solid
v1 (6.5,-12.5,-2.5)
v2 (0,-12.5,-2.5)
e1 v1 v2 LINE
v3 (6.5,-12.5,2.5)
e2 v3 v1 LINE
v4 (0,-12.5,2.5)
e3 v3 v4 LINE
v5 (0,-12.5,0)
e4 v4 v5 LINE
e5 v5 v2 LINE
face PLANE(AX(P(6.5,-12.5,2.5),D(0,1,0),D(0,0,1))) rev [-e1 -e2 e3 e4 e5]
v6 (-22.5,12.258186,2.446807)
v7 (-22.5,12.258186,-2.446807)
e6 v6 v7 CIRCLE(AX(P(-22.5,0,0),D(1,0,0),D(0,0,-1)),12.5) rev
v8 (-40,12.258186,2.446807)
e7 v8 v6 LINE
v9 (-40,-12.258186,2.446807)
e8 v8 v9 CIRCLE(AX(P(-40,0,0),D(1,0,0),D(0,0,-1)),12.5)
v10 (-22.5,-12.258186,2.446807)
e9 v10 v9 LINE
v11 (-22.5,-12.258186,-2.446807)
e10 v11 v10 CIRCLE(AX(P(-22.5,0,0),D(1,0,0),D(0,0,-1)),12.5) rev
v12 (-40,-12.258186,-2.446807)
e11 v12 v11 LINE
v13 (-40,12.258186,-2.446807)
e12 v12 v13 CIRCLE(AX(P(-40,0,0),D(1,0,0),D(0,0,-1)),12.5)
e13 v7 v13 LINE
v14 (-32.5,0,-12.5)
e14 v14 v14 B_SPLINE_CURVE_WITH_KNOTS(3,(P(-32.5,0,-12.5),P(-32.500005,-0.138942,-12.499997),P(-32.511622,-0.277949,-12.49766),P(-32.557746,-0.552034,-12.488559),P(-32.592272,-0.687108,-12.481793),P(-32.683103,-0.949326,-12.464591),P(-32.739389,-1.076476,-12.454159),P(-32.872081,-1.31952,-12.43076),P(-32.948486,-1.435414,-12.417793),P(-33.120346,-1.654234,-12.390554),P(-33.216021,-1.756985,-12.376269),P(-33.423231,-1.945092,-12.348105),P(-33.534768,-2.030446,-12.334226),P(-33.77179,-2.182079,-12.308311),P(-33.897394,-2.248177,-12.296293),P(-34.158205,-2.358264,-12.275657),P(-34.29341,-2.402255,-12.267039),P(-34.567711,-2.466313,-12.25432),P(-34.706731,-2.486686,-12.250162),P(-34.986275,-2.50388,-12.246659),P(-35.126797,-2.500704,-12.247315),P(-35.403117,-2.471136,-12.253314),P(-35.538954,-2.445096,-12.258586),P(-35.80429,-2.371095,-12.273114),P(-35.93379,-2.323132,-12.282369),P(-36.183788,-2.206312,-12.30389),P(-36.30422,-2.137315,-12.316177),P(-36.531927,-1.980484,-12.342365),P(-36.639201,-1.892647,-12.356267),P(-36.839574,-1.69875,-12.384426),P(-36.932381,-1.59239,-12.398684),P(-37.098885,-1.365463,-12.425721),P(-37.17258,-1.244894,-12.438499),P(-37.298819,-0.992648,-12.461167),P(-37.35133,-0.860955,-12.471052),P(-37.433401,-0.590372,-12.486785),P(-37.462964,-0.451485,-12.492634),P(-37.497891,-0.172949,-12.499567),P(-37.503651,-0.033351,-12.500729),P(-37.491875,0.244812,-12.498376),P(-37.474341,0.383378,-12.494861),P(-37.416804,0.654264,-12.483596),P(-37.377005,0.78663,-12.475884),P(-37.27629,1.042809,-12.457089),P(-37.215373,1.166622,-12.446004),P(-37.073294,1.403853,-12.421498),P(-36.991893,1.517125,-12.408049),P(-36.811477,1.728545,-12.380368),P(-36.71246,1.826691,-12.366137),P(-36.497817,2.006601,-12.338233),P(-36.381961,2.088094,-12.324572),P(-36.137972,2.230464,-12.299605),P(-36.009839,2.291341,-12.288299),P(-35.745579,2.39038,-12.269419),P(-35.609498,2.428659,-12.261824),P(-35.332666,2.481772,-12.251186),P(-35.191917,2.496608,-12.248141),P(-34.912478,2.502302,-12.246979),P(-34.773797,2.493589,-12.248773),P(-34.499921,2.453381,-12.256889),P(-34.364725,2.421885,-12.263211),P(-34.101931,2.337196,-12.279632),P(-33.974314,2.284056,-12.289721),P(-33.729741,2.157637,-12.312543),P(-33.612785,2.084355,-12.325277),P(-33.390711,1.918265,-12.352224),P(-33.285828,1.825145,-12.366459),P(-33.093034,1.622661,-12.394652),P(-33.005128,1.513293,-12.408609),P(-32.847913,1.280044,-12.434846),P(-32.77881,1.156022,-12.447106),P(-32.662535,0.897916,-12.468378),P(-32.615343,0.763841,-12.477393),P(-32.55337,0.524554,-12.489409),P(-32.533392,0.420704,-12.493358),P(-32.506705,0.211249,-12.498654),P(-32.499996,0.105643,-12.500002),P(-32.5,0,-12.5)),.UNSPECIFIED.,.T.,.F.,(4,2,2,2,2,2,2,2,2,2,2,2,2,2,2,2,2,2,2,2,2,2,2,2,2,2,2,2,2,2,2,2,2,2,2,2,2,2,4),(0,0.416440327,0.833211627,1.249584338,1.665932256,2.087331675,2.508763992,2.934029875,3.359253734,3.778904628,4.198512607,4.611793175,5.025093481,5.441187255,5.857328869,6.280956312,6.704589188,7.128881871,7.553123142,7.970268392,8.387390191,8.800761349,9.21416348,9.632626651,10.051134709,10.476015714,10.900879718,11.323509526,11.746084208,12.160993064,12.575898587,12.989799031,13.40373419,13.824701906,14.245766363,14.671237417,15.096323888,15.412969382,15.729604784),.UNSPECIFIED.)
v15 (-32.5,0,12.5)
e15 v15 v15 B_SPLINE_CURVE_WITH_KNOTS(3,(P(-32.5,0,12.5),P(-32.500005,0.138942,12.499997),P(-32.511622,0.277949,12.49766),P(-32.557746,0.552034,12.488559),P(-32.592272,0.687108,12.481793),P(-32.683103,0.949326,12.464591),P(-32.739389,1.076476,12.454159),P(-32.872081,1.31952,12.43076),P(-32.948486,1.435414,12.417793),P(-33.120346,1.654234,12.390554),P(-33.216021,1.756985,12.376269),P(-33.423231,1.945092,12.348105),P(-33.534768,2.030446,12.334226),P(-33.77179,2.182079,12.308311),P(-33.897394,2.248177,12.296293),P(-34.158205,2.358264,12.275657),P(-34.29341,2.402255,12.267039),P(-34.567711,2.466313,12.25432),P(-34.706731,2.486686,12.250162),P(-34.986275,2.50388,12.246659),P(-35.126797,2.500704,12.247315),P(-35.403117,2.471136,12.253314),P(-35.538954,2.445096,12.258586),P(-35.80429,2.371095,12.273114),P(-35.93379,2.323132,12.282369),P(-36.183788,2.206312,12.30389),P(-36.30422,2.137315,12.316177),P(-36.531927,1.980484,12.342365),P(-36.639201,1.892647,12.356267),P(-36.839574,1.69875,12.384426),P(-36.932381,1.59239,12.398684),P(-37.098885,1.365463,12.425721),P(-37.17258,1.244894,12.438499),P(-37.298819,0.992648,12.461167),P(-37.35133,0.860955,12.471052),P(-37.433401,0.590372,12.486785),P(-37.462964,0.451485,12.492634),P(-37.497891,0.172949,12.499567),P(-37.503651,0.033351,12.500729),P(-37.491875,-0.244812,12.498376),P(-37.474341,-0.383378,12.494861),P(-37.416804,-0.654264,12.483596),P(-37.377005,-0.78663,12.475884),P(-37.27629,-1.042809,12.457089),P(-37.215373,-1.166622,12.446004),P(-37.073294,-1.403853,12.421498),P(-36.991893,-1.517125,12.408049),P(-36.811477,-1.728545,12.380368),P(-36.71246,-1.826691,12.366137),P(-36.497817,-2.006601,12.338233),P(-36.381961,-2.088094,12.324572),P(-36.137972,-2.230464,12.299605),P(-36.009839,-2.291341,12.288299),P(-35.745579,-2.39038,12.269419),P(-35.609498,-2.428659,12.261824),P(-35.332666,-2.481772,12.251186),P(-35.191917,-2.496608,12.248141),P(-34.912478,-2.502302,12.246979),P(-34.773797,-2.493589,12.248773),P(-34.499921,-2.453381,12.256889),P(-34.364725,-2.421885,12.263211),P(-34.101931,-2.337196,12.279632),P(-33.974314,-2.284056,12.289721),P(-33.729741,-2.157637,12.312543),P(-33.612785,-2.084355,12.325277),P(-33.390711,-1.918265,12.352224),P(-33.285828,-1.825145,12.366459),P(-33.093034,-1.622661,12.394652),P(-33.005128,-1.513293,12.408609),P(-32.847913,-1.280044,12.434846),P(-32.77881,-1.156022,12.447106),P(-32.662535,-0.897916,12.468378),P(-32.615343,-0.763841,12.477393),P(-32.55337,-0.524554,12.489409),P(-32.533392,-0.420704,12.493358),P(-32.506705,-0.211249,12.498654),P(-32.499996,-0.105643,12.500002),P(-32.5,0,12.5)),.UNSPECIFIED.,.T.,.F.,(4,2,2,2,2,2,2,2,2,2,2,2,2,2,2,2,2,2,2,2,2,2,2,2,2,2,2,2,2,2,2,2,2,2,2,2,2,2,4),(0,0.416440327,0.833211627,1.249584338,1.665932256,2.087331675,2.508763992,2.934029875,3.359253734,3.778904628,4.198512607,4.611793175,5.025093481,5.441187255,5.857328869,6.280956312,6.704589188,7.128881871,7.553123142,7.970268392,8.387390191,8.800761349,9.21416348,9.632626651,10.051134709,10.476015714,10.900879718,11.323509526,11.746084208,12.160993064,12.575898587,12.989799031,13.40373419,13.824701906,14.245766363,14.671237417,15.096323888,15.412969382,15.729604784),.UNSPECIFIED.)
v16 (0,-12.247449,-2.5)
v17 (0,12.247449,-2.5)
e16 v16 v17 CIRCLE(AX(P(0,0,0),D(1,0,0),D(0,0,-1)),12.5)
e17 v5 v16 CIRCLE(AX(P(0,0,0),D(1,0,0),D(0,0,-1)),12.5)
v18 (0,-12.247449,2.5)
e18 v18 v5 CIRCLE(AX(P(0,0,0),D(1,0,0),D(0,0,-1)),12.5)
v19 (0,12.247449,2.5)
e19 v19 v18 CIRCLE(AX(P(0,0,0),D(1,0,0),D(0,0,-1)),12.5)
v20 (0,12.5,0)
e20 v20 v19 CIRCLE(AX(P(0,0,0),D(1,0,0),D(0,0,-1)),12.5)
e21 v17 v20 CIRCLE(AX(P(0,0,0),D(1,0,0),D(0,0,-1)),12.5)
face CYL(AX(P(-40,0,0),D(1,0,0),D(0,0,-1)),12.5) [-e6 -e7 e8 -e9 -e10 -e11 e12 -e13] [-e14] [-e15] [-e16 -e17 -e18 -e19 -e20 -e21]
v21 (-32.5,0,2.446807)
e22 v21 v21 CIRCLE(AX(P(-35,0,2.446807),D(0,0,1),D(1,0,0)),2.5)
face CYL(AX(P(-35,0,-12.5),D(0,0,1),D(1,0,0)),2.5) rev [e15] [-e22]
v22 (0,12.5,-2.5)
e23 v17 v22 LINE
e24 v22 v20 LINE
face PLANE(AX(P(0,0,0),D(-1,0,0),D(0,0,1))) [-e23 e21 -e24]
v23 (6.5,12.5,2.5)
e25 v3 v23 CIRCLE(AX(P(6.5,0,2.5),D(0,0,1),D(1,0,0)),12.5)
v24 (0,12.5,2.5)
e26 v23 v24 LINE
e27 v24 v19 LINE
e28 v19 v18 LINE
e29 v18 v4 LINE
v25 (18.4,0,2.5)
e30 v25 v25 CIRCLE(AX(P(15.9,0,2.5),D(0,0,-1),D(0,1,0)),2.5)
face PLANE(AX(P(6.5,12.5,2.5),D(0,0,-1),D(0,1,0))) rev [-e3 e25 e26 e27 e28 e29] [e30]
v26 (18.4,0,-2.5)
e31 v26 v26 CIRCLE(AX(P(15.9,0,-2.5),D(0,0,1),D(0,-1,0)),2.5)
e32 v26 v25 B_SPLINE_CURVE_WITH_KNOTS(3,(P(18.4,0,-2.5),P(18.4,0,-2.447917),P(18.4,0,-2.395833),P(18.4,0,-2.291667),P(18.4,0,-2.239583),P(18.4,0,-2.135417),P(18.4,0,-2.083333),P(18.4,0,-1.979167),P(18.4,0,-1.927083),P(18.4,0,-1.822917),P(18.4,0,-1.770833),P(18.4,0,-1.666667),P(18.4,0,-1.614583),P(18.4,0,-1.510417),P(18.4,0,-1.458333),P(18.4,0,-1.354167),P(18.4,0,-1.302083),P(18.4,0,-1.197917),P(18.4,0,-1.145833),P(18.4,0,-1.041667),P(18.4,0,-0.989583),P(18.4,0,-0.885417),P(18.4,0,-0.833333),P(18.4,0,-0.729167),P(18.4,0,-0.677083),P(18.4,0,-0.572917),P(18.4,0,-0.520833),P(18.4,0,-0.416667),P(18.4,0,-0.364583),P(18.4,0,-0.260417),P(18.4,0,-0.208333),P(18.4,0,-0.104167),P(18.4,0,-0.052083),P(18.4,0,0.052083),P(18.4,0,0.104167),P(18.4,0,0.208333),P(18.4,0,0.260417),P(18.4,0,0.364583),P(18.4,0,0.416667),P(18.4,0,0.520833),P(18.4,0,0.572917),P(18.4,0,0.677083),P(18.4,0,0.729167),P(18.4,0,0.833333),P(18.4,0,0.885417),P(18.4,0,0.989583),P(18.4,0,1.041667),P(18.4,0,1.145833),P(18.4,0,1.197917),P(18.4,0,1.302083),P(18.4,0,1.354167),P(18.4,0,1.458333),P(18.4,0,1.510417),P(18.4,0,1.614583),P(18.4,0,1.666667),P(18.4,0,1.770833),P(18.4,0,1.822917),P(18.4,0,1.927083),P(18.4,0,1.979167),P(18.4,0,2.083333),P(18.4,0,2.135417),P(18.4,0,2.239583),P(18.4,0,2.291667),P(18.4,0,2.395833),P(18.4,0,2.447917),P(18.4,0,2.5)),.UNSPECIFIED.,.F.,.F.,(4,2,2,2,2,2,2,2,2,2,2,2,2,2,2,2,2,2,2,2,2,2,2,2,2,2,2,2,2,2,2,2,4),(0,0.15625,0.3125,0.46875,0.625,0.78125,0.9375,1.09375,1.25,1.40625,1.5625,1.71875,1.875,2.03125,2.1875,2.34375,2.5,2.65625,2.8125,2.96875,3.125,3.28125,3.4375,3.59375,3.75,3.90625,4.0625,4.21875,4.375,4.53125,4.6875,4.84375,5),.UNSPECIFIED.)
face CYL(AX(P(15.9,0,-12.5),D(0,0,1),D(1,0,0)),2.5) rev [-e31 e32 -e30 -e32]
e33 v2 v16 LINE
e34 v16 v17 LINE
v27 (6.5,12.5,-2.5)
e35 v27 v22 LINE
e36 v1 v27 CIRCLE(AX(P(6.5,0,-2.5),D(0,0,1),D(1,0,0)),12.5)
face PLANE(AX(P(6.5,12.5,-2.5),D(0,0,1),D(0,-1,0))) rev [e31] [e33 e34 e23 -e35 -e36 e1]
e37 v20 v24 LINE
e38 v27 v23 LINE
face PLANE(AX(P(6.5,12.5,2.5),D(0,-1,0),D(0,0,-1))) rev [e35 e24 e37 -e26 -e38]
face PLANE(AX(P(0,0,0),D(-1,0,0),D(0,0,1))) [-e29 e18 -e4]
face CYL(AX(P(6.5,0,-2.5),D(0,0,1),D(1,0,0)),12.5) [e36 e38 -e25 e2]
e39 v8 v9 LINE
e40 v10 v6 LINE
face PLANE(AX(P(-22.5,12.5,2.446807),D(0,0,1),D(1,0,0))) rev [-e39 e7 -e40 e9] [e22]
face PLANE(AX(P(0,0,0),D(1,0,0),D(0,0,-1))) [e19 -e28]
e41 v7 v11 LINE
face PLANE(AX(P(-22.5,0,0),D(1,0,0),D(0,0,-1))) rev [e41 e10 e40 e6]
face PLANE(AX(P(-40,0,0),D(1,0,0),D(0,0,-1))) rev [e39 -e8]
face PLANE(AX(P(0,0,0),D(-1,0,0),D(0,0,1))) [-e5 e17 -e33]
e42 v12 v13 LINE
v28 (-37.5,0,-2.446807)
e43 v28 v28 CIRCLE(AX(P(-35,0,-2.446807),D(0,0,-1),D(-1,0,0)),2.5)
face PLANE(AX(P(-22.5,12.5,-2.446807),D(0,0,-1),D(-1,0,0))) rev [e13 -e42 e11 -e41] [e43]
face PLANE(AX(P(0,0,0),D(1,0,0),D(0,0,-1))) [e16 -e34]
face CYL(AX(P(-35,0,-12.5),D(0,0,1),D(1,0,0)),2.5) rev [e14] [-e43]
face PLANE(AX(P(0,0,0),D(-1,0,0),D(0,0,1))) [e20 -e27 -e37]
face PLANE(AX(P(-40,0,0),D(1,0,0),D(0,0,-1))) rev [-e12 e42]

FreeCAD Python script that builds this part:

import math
import FreeCAD as App
import Part
import Sketcher
from FreeCAD import Vector
Q = App.Units.Quantity

doc = App.newDocument("Part")
body = doc.addObject("PartDesign::Body", "Body")

# Sketch on YZ plane
sketch1 = body.newObject("Sketcher::SketchObject", "Sketch")
sketch1.AttachmentSupport = (doc.getObject("YZ_Plane"), [""])
sketch1.MapMode = "FlatFace"
sketch1.addGeometry(Part.Circle(Vector(0, 0, 0), Vector(0, 0, 1), 12.5), False)
sketch1.addConstraint([
    Sketcher.Constraint("Coincident", 0, 3, -1, 1),
    Sketcher.Constraint("Diameter", 0, Q("25 mm")),
])
pad1 = body.newObject("PartDesign::Pad", "Pad")
pad1.Profile = sketch1
pad1.Length = 40
pad1.Reversed = True

# Sketch on YZ plane
sketch2 = body.newObject("Sketcher::SketchObject", "Sketch001")
sketch2.AttachmentSupport = (doc.getObject("YZ_Plane"), [""])
sketch2.MapMode = "FlatFace"
sketch2.addGeometry([
    Part.LineSegment(Vector(12.5, 2.5, 0), Vector(-12.5, 2.5, 0)),
    Part.LineSegment(Vector(-12.5, 2.5, 0), Vector(-12.5, -2.5, 0)),
    Part.LineSegment(Vector(-12.5, -2.5, 0), Vector(12.5, -2.5, 0)),
    Part.LineSegment(Vector(12.5, -2.5, 0), Vector(12.5, 2.5, 0)),
], False)
sketch2.addConstraint([
    Sketcher.Constraint("Coincident", 0, 2, 1, 1),
    Sketcher.Constraint("Coincident", 1, 2, 2, 1),
    Sketcher.Constraint("Coincident", 2, 2, 3, 1),
    Sketcher.Constraint("Coincident", 3, 2, 0, 1),
    Sketcher.Constraint("Horizontal", 0),
    Sketcher.Constraint("Vertical", 1),
    Sketcher.Constraint("Horizontal", 2),
    Sketcher.Constraint("Vertical", 3),
    Sketcher.Constraint("Symmetric", 0, 2, 2, 2, -1, 1),
    Sketcher.Constraint("DistanceX", 0, 2, 0, 1, Q("25 mm")),
    Sketcher.Constraint("DistanceY", 1, 2, 1, 1, Q("5 mm")),
])
pad2 = body.newObject("PartDesign::Pad", "Pad001")
pad2.Profile = sketch2
pad2.Length = 6.5

# Sketch on XY plane
sketch3 = body.newObject("Sketcher::SketchObject", "Sketch002")
sketch3.AttachmentSupport = (doc.getObject("XY_Plane"), [""])
sketch3.MapMode = "FlatFace"
sketch3.AttachmentOffset = App.Placement(Vector(0, 0, 2.5), App.Rotation())
sketch3.addGeometry([
    Part.LineSegment(Vector(6.5, 12.5, 0), Vector(6.5, -12.5, 0)),
    Part.ArcOfCircle(Part.Circle(Vector(6.5, 0, 0), Vector(0, 0, 1), 12.5), math.radians(-90), math.radians(90)),
], False)
sketch3.addConstraint([
    Sketcher.Constraint("Coincident", 0, 1, 1, 2),
    Sketcher.Constraint("Coincident", 1, 1, 0, 2),
    Sketcher.Constraint("Vertical", 0),
    Sketcher.Constraint("PointOnObject", 1, 3, -1),
    Sketcher.Constraint("Vertical", 1, 3, 0, 1),
    Sketcher.Constraint("Radius", 1, Q("12.5 mm")),
    Sketcher.Constraint("DistanceX", -1, 1, 1, 3, Q("6.5 mm")),
])
pad3 = body.newObject("PartDesign::Pad", "Pad002")
pad3.Profile = sketch3
pad3.Length = 5
pad3.Reversed = True

# Sketch on XY plane
sketch4 = body.newObject("Sketcher::SketchObject", "Sketch003")
sketch4.AttachmentSupport = (doc.getObject("XY_Plane"), [""])
sketch4.MapMode = "FlatFace"
sketch4.AttachmentOffset = App.Placement(Vector(0, 0, 2.5), App.Rotation())
sketch4.addGeometry(Part.Circle(Vector(15.9, 0, 0), Vector(0, 0, 1), 2.5), False)
sketch4.addConstraint([
    Sketcher.Constraint("PointOnObject", 0, 3, -1),
    Sketcher.Constraint("Diameter", 0, Q("5 mm")),
    Sketcher.Constraint("DistanceX", -1, 1, 0, 3, Q("15.9 mm")),
])
pocket1 = body.newObject("PartDesign::Pocket", "Pocket")
pocket1.Profile = sketch4
pocket1.Type = "ThroughAll"
pocket1.Midplane = True

# Sketch on YZ plane
sketch5 = body.newObject("Sketcher::SketchObject", "Sketch004")
sketch5.AttachmentSupport = (doc.getObject("YZ_Plane"), [""])
sketch5.MapMode = "FlatFace"
sketch5.AttachmentOffset = App.Placement(Vector(0, 0, -40), App.Rotation())
sketch5.addGeometry([
    Part.LineSegment(Vector(12.5, -2.446807, 0), Vector(-12.5, -2.446807, 0)),
    Part.LineSegment(Vector(-12.5, -2.446807, 0), Vector(-12.5, 2.446807, 0)),
    Part.LineSegment(Vector(-12.5, 2.446807, 0), Vector(12.5, 2.446807, 0)),
    Part.LineSegment(Vector(12.5, 2.446807, 0), Vector(12.5, -2.446807, 0)),
], False)
sketch5.addConstraint([
    Sketcher.Constraint("Coincident", 0, 2, 1, 1),
    Sketcher.Constraint("Coincident", 1, 2, 2, 1),
    Sketcher.Constraint("Coincident", 2, 2, 3, 1),
    Sketcher.Constraint("Coincident", 3, 2, 0, 1),
    Sketcher.Constraint("Horizontal", 0),
    Sketcher.Constraint("Vertical", 1),
    Sketcher.Constraint("Horizontal", 2),
    Sketcher.Constraint("Vertical", 3),
    Sketcher.Constraint("Symmetric", 0, 2, 2, 2, -1, 1),
    Sketcher.Constraint("DistanceX", 0, 2, 0, 1, Q("25 mm")),
    Sketcher.Constraint("DistanceY", 1, 1, 1, 2, Q("4.893614 mm")),
])
pocket2 = body.newObject("PartDesign::Pocket", "Pocket001")
pocket2.Profile = sketch5
pocket2.Length = 17.5
pocket2.Reversed = True

# Sketch on XY plane
sketch6 = body.newObject("Sketcher::SketchObject", "Sketch005")
sketch6.AttachmentSupport = (doc.getObject("XY_Plane"), [""])
sketch6.MapMode = "FlatFace"
sketch6.addGeometry(Part.Circle(Vector(-35, 0, 0), Vector(0, 0, 1), 2.5), False)
sketch6.addConstraint([
    Sketcher.Constraint("PointOnObject", 0, 3, -1),
    Sketcher.Constraint("Diameter", 0, Q("5 mm")),
    Sketcher.Constraint("DistanceX", 0, 3, -1, 1, Q("35 mm")),
])
pocket3 = body.newObject("PartDesign::Pocket", "Pocket002")
pocket3.Profile = sketch6
pocket3.Type = "ThroughAll"
pocket3.Midplane = True

doc.recompute()
